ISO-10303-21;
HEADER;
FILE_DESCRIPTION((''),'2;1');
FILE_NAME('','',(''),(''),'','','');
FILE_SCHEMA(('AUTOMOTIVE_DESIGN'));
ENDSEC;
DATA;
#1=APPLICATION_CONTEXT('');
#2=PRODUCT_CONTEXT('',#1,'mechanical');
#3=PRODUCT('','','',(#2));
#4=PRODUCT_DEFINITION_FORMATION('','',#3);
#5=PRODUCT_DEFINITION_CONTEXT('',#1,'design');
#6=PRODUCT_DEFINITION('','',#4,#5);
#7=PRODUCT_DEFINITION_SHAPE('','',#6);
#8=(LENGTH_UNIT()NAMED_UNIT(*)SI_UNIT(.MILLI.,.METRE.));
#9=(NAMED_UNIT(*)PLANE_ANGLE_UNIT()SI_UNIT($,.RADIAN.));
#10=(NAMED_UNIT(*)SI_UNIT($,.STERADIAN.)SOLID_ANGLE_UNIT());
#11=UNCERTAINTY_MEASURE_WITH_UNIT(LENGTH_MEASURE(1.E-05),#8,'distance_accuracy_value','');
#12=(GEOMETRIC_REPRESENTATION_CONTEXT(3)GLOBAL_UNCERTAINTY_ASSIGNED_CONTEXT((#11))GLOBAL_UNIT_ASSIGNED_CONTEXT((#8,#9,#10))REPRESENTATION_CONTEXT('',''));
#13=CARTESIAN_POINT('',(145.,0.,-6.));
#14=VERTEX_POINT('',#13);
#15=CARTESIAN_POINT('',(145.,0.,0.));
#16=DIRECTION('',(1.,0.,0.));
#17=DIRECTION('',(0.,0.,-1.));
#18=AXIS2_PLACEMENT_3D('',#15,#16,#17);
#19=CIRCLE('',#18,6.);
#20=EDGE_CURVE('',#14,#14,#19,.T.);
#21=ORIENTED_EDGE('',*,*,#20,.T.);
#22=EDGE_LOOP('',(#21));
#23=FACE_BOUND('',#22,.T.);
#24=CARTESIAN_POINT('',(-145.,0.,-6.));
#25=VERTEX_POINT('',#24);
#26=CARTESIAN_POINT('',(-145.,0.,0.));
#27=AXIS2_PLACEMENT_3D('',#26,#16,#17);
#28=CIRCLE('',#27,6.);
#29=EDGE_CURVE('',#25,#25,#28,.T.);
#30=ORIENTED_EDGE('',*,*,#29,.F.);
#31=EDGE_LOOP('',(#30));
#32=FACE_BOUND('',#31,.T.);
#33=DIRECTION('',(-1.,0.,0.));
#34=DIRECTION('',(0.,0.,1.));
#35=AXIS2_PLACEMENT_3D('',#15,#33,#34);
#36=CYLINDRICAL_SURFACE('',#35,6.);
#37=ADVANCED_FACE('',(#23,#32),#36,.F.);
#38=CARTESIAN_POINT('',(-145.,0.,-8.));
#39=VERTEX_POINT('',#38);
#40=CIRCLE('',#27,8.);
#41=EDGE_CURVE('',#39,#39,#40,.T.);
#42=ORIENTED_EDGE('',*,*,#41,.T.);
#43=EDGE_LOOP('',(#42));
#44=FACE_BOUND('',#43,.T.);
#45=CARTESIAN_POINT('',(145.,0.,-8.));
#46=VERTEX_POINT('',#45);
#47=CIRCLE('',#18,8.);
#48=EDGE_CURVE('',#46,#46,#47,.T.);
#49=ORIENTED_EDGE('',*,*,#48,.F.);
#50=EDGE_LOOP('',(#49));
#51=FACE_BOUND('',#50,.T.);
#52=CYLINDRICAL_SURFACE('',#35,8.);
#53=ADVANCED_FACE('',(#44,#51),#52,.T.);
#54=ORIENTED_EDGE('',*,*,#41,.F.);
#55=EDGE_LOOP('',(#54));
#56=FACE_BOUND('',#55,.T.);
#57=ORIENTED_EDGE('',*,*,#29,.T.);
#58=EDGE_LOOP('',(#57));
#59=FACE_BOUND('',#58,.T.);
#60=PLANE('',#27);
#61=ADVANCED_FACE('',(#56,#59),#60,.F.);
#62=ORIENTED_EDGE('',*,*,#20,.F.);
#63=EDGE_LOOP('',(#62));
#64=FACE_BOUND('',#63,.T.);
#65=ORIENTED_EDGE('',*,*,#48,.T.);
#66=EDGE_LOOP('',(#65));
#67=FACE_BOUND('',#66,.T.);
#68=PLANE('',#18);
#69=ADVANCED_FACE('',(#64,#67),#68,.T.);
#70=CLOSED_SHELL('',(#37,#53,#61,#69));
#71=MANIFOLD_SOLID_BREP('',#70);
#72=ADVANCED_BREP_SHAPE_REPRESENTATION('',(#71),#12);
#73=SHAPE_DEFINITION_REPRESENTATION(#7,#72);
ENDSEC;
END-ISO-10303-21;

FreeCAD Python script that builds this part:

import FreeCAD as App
import Part
import Sketcher

V = App.Vector
Q = App.Units.Quantity

doc = App.newDocument("Part")
body = doc.addObject("PartDesign::Body", "Body")

sketch1 = body.newObject("Sketcher::SketchObject", "Sketch")
sketch1.AttachmentSupport = (doc.getObject("YZ_Plane"), [""])
sketch1.MapMode = "FlatFace"
sketch1.addGeometry([
    Part.Circle(V(0, 0, 0), V(0, 0, 1), 8),
    Part.Circle(V(0, 0, 0), V(0, 0, 1), 6),
], False)
sketch1.addConstraint([
    Sketcher.Constraint("Coincident", 0, 3, -1, 1),
    Sketcher.Constraint("Coincident", 1, 3, -1, 1),
    Sketcher.Constraint("Diameter", 0, Q("16 mm")),
    Sketcher.Constraint("Diameter", 1, Q("12 mm")),
])
pad1 = body.newObject("PartDesign::Pad", "Pad")
pad1.Profile = sketch1
pad1.Length = 290
pad1.Midplane = True

doc.recompute()
